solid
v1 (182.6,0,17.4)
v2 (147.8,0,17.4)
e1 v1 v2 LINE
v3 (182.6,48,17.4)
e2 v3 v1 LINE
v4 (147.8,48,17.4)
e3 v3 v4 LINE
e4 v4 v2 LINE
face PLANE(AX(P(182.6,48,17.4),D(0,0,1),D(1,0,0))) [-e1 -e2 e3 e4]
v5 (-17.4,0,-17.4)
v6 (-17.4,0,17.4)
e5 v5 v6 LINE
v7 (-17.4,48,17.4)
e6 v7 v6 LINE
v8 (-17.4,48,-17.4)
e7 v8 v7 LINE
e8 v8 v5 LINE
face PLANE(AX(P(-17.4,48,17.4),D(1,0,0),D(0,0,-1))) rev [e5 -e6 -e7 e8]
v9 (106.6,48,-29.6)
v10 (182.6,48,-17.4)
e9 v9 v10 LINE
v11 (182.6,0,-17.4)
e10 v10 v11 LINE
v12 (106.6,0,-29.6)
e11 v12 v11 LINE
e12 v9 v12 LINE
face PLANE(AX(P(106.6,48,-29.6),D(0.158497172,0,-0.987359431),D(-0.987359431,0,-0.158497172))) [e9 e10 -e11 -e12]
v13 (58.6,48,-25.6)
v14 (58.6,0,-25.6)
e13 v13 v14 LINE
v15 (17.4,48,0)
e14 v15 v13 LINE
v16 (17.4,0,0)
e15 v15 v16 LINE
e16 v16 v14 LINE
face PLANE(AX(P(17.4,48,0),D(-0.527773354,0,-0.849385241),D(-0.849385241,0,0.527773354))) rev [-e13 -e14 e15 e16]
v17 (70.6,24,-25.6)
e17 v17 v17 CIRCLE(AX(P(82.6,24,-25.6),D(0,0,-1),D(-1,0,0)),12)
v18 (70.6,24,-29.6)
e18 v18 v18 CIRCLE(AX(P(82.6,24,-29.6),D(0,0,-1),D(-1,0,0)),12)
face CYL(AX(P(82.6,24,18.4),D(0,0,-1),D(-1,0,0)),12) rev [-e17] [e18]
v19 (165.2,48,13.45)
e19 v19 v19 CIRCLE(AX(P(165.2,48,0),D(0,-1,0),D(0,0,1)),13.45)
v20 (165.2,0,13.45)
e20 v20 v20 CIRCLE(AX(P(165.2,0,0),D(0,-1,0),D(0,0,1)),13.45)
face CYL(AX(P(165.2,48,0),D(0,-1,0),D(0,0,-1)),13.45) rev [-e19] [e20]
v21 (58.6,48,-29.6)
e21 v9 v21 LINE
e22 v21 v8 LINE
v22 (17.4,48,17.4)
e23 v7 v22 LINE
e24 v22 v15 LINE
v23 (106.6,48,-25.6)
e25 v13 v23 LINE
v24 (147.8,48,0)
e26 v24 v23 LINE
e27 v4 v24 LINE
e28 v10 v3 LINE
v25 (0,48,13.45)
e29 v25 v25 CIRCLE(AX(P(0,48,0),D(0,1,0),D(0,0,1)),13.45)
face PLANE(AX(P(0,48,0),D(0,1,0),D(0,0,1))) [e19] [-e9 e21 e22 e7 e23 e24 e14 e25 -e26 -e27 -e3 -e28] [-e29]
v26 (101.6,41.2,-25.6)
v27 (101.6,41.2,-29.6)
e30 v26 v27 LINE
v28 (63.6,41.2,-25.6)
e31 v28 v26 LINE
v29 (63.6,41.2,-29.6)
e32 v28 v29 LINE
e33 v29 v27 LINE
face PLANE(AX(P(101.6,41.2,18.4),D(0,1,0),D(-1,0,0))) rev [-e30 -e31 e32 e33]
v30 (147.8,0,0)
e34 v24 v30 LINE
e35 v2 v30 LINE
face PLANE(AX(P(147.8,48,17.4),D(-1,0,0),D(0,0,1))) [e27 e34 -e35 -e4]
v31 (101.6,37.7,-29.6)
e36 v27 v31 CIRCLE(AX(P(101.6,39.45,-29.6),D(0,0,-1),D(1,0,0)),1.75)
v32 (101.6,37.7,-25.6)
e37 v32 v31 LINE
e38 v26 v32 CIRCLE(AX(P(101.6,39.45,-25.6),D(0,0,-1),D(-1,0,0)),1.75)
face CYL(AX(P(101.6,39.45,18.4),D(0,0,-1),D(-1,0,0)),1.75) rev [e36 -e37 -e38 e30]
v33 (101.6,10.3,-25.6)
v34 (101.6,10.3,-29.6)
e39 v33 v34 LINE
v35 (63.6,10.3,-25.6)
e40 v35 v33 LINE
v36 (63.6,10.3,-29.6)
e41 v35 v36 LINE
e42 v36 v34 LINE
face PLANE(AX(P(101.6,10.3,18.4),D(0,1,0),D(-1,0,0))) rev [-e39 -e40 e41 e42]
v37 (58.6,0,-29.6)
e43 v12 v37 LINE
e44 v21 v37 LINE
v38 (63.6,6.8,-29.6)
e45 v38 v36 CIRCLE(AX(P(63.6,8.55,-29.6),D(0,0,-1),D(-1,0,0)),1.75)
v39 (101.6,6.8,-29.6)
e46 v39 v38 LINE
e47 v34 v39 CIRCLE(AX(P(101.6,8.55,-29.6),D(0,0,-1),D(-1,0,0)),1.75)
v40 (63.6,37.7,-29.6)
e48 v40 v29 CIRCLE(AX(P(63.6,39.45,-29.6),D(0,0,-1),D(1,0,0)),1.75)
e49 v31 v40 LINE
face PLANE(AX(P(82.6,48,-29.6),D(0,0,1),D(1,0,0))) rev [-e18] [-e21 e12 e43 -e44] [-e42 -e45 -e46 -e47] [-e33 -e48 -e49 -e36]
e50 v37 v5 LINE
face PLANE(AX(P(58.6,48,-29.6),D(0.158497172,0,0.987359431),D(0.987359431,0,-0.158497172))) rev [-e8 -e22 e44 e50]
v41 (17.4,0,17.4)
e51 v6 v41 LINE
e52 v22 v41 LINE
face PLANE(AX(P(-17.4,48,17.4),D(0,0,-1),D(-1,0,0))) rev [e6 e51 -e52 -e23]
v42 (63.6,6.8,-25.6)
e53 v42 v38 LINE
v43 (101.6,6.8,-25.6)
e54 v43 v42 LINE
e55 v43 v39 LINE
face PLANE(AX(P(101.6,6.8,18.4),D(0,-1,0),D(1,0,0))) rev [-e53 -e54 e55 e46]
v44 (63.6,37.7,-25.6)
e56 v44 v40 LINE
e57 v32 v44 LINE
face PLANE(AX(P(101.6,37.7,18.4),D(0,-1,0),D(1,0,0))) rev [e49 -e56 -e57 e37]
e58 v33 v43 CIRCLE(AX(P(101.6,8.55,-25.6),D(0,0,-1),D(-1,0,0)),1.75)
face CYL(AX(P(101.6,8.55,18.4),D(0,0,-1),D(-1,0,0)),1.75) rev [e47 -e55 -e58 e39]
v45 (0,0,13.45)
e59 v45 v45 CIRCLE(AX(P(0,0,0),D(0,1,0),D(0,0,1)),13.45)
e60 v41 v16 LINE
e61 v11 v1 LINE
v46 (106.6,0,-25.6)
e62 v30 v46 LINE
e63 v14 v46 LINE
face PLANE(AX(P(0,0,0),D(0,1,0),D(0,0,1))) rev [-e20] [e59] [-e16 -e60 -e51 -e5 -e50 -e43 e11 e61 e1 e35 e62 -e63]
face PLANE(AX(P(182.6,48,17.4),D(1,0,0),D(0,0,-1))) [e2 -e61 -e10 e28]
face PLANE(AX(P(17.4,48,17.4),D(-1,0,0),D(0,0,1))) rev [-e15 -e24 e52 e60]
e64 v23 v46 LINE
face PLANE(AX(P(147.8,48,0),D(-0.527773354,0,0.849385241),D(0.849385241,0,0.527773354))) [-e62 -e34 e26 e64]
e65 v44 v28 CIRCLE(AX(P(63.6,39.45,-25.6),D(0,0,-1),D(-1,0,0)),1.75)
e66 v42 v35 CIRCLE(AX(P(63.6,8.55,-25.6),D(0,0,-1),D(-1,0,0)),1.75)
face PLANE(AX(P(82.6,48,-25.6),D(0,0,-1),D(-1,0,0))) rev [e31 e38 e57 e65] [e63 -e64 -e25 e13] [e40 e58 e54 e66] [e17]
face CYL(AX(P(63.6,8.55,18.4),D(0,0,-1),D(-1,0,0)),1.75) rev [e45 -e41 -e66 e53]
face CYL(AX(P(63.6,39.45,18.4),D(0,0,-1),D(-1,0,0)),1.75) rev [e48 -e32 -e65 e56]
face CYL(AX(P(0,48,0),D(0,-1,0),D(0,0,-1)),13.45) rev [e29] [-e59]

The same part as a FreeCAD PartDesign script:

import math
import FreeCAD as App
import Part
import Sketcher

V = App.Vector
Q = App.Units.Quantity


def add_polygon(sketch, points):
    """Adds a closed chain of lines whose ends are joined by coincident constraints."""
    first, n = sketch.GeometryCount, len(points)
    for a, b in zip(points, points[1:] + points[:1]):
        sketch.addGeometry(Part.LineSegment(App.Vector(*a, 0), App.Vector(*b, 0)), False)
    for i in range(n):
        sketch.addConstraint(Sketcher.Constraint("Coincident", first + i, 2, first + (i + 1) % n, 1))

doc = App.newDocument("Part")
body = doc.addObject("PartDesign::Body", "Body")

sketch1 = doc.addObject("Sketcher::SketchObject", "Sketch")
body.addObject(sketch1)
sketch1.AttachmentSupport = (doc.XZ_Plane, [""])
sketch1.MapMode = "FlatFace"
add_polygon(sketch1, [(-17.4, 17.4), (17.4, 17.4), (17.4, 0), (58.6, -25.6), (82.6, -25.6), (82.6, -29.6), (58.6, -29.6), (-17.4, -17.4)])
sketch1.addGeometry(Part.Circle(V(0, 0, 0), V(0, 0, 1), 13.4), False)
sketch1.addConstraint([
    Sketcher.Constraint("Horizontal", 0),
    Sketcher.Constraint("Vertical", 1),
    Sketcher.Constraint("Horizontal", 3),
    Sketcher.Constraint("Vertical", 4),
    Sketcher.Constraint("Horizontal", 5),
    Sketcher.Constraint("Vertical", 7),
    Sketcher.Constraint("Coincident", 8, 3, -1, 1),
    Sketcher.Constraint("Symmetric", 0, 2, 6, 2, -1, 1),
    Sketcher.Constraint("PointOnObject", 1, 2, -1),
    Sketcher.Constraint("Vertical", 2, 2, 5, 2),
    Sketcher.Constraint("Equal", 0, 7),
    Sketcher.Constraint("Diameter", 8, Q("26.9 mm")),
    Sketcher.Constraint("DistanceX", 3, 1, 3, 2, Q("24 mm")),
    Sketcher.Constraint("DistanceY", 4, 2, 4, 1, Q("4 mm")),
    Sketcher.Constraint("DistanceX", 0, 1, 0, 2, Q("34.8 mm")),
    Sketcher.Constraint("DistanceY", 2, 2, 0, 2, Q("43 mm")),
    Sketcher.Constraint("DistanceX", 6, 2, 2, 2, Q("76 mm")),
])
pad1 = doc.addObject("PartDesign::Pad", "Pad")
body.addObject(pad1)
pad1.Profile = sketch1
pad1.Length = 48
pad1.Reversed = True
doc.recompute()

datumplane = doc.addObject("PartDesign::Plane", "DatumPlane")
body.addObject(datumplane)
datumplane.AttachmentSupport = (doc.YZ_Plane, [""])
datumplane.MapMode = "FlatFace"
datumplane.AttachmentOffset = App.Placement(V(0, 0, 82.6), App.Rotation())
mirrored = doc.addObject("PartDesign::Mirrored", "Mirrored")
body.addObject(mirrored)
mirrored.Originals = [pad1]
mirrored.MirrorPlane = (datumplane, [""])
body.Tip = mirrored

sketch2 = doc.addObject("Sketcher::SketchObject", "Sketch001")
body.addObject(sketch2)
sketch2.AttachmentSupport = (doc.XY_Plane, [""])
sketch2.MapMode = "FlatFace"
sketch2.AttachmentOffset = App.Placement(V(0, 0, -29.6), App.Rotation())
sketch2.addGeometry([
    Part.Circle(V(82.6, 24, 0), V(0, 0, 1), 12),
    Part.LineSegment(V(63.6, 10.3, 0), V(101.6, 10.3, 0)),
    Part.ArcOfCircle(Part.Circle(V(101.6, 8.6, 0), V(0, 0, 1), 1.8), math.radians(-90), math.radians(90)),
    Part.LineSegment(V(101.6, 6.8, 0), V(63.6, 6.8, 0)),
    Part.ArcOfCircle(Part.Circle(V(63.6, 8.6, 0), V(0, 0, 1), 1.8), math.radians(90), math.radians(270)),
    Part.LineSegment(V(101.6, 37.7, 0), V(63.6, 37.7, 0)),
    Part.ArcOfCircle(Part.Circle(V(63.6, 39.5, 0), V(0, 0, 1), 1.8), math.radians(90), math.radians(270)),
    Part.LineSegment(V(63.6, 41.2, 0), V(101.6, 41.2, 0)),
    Part.ArcOfCircle(Part.Circle(V(101.6, 39.5, 0), V(0, 0, 1), 1.8), math.radians(-90), math.radians(90)),
], False)
sketch2.addConstraint([
    Sketcher.Constraint("Tangent", 1, 2, 2, 2),
    Sketcher.Constraint("Tangent", 2, 1, 3, 1),
    Sketcher.Constraint("Tangent", 3, 2, 4, 2),
    Sketcher.Constraint("Tangent", 4, 1, 1, 1),
    Sketcher.Constraint("Tangent", 5, 2, 6, 2),
    Sketcher.Constraint("Tangent", 6, 1, 7, 1),
    Sketcher.Constraint("Tangent", 7, 2, 8, 2),
    Sketcher.Constraint("Tangent", 8, 1, 5, 1),
    Sketcher.Constraint("Horizontal", 1),
    Sketcher.Constraint("Horizontal", 3),
    Sketcher.Constraint("Horizontal", 5),
    Sketcher.Constraint("Horizontal", 7),
    Sketcher.Constraint("Equal", 4, 6),
    Sketcher.Constraint("Vertical", 4, 3, 6, 3),
    Sketcher.Constraint("Vertical", 2, 3, 8, 3),
    Sketcher.Constraint("Diameter", 0, Q("24 mm")),
    Sketcher.Constraint("DistanceX", 1, 1, 1, 2, Q("38 mm")),
    Sketcher.Constraint("Radius", 2, Q("1.75 mm")),
    Sketcher.Constraint("DistanceY", -1, 1, 0, 3, Q("24 mm")),
    Sketcher.Constraint("DistanceX", 0, 3, 2, 3, Q("19 mm")),
    Sketcher.Constraint("DistanceX", -1, 1, 0, 3, Q("82.6 mm")),
    Sketcher.Constraint("DistanceY", -1, 1, 1, 2, Q("10.3 mm")),
    Sketcher.Constraint("DistanceY", -1, 1, 5, 2, Q("37.7 mm")),
])
pocket1 = doc.addObject("PartDesign::Pocket", "Pocket")
body.addObject(pocket1)
pocket1.Profile = sketch2
pocket1.Length = 48
pocket1.Reversed = True

doc.recompute()
